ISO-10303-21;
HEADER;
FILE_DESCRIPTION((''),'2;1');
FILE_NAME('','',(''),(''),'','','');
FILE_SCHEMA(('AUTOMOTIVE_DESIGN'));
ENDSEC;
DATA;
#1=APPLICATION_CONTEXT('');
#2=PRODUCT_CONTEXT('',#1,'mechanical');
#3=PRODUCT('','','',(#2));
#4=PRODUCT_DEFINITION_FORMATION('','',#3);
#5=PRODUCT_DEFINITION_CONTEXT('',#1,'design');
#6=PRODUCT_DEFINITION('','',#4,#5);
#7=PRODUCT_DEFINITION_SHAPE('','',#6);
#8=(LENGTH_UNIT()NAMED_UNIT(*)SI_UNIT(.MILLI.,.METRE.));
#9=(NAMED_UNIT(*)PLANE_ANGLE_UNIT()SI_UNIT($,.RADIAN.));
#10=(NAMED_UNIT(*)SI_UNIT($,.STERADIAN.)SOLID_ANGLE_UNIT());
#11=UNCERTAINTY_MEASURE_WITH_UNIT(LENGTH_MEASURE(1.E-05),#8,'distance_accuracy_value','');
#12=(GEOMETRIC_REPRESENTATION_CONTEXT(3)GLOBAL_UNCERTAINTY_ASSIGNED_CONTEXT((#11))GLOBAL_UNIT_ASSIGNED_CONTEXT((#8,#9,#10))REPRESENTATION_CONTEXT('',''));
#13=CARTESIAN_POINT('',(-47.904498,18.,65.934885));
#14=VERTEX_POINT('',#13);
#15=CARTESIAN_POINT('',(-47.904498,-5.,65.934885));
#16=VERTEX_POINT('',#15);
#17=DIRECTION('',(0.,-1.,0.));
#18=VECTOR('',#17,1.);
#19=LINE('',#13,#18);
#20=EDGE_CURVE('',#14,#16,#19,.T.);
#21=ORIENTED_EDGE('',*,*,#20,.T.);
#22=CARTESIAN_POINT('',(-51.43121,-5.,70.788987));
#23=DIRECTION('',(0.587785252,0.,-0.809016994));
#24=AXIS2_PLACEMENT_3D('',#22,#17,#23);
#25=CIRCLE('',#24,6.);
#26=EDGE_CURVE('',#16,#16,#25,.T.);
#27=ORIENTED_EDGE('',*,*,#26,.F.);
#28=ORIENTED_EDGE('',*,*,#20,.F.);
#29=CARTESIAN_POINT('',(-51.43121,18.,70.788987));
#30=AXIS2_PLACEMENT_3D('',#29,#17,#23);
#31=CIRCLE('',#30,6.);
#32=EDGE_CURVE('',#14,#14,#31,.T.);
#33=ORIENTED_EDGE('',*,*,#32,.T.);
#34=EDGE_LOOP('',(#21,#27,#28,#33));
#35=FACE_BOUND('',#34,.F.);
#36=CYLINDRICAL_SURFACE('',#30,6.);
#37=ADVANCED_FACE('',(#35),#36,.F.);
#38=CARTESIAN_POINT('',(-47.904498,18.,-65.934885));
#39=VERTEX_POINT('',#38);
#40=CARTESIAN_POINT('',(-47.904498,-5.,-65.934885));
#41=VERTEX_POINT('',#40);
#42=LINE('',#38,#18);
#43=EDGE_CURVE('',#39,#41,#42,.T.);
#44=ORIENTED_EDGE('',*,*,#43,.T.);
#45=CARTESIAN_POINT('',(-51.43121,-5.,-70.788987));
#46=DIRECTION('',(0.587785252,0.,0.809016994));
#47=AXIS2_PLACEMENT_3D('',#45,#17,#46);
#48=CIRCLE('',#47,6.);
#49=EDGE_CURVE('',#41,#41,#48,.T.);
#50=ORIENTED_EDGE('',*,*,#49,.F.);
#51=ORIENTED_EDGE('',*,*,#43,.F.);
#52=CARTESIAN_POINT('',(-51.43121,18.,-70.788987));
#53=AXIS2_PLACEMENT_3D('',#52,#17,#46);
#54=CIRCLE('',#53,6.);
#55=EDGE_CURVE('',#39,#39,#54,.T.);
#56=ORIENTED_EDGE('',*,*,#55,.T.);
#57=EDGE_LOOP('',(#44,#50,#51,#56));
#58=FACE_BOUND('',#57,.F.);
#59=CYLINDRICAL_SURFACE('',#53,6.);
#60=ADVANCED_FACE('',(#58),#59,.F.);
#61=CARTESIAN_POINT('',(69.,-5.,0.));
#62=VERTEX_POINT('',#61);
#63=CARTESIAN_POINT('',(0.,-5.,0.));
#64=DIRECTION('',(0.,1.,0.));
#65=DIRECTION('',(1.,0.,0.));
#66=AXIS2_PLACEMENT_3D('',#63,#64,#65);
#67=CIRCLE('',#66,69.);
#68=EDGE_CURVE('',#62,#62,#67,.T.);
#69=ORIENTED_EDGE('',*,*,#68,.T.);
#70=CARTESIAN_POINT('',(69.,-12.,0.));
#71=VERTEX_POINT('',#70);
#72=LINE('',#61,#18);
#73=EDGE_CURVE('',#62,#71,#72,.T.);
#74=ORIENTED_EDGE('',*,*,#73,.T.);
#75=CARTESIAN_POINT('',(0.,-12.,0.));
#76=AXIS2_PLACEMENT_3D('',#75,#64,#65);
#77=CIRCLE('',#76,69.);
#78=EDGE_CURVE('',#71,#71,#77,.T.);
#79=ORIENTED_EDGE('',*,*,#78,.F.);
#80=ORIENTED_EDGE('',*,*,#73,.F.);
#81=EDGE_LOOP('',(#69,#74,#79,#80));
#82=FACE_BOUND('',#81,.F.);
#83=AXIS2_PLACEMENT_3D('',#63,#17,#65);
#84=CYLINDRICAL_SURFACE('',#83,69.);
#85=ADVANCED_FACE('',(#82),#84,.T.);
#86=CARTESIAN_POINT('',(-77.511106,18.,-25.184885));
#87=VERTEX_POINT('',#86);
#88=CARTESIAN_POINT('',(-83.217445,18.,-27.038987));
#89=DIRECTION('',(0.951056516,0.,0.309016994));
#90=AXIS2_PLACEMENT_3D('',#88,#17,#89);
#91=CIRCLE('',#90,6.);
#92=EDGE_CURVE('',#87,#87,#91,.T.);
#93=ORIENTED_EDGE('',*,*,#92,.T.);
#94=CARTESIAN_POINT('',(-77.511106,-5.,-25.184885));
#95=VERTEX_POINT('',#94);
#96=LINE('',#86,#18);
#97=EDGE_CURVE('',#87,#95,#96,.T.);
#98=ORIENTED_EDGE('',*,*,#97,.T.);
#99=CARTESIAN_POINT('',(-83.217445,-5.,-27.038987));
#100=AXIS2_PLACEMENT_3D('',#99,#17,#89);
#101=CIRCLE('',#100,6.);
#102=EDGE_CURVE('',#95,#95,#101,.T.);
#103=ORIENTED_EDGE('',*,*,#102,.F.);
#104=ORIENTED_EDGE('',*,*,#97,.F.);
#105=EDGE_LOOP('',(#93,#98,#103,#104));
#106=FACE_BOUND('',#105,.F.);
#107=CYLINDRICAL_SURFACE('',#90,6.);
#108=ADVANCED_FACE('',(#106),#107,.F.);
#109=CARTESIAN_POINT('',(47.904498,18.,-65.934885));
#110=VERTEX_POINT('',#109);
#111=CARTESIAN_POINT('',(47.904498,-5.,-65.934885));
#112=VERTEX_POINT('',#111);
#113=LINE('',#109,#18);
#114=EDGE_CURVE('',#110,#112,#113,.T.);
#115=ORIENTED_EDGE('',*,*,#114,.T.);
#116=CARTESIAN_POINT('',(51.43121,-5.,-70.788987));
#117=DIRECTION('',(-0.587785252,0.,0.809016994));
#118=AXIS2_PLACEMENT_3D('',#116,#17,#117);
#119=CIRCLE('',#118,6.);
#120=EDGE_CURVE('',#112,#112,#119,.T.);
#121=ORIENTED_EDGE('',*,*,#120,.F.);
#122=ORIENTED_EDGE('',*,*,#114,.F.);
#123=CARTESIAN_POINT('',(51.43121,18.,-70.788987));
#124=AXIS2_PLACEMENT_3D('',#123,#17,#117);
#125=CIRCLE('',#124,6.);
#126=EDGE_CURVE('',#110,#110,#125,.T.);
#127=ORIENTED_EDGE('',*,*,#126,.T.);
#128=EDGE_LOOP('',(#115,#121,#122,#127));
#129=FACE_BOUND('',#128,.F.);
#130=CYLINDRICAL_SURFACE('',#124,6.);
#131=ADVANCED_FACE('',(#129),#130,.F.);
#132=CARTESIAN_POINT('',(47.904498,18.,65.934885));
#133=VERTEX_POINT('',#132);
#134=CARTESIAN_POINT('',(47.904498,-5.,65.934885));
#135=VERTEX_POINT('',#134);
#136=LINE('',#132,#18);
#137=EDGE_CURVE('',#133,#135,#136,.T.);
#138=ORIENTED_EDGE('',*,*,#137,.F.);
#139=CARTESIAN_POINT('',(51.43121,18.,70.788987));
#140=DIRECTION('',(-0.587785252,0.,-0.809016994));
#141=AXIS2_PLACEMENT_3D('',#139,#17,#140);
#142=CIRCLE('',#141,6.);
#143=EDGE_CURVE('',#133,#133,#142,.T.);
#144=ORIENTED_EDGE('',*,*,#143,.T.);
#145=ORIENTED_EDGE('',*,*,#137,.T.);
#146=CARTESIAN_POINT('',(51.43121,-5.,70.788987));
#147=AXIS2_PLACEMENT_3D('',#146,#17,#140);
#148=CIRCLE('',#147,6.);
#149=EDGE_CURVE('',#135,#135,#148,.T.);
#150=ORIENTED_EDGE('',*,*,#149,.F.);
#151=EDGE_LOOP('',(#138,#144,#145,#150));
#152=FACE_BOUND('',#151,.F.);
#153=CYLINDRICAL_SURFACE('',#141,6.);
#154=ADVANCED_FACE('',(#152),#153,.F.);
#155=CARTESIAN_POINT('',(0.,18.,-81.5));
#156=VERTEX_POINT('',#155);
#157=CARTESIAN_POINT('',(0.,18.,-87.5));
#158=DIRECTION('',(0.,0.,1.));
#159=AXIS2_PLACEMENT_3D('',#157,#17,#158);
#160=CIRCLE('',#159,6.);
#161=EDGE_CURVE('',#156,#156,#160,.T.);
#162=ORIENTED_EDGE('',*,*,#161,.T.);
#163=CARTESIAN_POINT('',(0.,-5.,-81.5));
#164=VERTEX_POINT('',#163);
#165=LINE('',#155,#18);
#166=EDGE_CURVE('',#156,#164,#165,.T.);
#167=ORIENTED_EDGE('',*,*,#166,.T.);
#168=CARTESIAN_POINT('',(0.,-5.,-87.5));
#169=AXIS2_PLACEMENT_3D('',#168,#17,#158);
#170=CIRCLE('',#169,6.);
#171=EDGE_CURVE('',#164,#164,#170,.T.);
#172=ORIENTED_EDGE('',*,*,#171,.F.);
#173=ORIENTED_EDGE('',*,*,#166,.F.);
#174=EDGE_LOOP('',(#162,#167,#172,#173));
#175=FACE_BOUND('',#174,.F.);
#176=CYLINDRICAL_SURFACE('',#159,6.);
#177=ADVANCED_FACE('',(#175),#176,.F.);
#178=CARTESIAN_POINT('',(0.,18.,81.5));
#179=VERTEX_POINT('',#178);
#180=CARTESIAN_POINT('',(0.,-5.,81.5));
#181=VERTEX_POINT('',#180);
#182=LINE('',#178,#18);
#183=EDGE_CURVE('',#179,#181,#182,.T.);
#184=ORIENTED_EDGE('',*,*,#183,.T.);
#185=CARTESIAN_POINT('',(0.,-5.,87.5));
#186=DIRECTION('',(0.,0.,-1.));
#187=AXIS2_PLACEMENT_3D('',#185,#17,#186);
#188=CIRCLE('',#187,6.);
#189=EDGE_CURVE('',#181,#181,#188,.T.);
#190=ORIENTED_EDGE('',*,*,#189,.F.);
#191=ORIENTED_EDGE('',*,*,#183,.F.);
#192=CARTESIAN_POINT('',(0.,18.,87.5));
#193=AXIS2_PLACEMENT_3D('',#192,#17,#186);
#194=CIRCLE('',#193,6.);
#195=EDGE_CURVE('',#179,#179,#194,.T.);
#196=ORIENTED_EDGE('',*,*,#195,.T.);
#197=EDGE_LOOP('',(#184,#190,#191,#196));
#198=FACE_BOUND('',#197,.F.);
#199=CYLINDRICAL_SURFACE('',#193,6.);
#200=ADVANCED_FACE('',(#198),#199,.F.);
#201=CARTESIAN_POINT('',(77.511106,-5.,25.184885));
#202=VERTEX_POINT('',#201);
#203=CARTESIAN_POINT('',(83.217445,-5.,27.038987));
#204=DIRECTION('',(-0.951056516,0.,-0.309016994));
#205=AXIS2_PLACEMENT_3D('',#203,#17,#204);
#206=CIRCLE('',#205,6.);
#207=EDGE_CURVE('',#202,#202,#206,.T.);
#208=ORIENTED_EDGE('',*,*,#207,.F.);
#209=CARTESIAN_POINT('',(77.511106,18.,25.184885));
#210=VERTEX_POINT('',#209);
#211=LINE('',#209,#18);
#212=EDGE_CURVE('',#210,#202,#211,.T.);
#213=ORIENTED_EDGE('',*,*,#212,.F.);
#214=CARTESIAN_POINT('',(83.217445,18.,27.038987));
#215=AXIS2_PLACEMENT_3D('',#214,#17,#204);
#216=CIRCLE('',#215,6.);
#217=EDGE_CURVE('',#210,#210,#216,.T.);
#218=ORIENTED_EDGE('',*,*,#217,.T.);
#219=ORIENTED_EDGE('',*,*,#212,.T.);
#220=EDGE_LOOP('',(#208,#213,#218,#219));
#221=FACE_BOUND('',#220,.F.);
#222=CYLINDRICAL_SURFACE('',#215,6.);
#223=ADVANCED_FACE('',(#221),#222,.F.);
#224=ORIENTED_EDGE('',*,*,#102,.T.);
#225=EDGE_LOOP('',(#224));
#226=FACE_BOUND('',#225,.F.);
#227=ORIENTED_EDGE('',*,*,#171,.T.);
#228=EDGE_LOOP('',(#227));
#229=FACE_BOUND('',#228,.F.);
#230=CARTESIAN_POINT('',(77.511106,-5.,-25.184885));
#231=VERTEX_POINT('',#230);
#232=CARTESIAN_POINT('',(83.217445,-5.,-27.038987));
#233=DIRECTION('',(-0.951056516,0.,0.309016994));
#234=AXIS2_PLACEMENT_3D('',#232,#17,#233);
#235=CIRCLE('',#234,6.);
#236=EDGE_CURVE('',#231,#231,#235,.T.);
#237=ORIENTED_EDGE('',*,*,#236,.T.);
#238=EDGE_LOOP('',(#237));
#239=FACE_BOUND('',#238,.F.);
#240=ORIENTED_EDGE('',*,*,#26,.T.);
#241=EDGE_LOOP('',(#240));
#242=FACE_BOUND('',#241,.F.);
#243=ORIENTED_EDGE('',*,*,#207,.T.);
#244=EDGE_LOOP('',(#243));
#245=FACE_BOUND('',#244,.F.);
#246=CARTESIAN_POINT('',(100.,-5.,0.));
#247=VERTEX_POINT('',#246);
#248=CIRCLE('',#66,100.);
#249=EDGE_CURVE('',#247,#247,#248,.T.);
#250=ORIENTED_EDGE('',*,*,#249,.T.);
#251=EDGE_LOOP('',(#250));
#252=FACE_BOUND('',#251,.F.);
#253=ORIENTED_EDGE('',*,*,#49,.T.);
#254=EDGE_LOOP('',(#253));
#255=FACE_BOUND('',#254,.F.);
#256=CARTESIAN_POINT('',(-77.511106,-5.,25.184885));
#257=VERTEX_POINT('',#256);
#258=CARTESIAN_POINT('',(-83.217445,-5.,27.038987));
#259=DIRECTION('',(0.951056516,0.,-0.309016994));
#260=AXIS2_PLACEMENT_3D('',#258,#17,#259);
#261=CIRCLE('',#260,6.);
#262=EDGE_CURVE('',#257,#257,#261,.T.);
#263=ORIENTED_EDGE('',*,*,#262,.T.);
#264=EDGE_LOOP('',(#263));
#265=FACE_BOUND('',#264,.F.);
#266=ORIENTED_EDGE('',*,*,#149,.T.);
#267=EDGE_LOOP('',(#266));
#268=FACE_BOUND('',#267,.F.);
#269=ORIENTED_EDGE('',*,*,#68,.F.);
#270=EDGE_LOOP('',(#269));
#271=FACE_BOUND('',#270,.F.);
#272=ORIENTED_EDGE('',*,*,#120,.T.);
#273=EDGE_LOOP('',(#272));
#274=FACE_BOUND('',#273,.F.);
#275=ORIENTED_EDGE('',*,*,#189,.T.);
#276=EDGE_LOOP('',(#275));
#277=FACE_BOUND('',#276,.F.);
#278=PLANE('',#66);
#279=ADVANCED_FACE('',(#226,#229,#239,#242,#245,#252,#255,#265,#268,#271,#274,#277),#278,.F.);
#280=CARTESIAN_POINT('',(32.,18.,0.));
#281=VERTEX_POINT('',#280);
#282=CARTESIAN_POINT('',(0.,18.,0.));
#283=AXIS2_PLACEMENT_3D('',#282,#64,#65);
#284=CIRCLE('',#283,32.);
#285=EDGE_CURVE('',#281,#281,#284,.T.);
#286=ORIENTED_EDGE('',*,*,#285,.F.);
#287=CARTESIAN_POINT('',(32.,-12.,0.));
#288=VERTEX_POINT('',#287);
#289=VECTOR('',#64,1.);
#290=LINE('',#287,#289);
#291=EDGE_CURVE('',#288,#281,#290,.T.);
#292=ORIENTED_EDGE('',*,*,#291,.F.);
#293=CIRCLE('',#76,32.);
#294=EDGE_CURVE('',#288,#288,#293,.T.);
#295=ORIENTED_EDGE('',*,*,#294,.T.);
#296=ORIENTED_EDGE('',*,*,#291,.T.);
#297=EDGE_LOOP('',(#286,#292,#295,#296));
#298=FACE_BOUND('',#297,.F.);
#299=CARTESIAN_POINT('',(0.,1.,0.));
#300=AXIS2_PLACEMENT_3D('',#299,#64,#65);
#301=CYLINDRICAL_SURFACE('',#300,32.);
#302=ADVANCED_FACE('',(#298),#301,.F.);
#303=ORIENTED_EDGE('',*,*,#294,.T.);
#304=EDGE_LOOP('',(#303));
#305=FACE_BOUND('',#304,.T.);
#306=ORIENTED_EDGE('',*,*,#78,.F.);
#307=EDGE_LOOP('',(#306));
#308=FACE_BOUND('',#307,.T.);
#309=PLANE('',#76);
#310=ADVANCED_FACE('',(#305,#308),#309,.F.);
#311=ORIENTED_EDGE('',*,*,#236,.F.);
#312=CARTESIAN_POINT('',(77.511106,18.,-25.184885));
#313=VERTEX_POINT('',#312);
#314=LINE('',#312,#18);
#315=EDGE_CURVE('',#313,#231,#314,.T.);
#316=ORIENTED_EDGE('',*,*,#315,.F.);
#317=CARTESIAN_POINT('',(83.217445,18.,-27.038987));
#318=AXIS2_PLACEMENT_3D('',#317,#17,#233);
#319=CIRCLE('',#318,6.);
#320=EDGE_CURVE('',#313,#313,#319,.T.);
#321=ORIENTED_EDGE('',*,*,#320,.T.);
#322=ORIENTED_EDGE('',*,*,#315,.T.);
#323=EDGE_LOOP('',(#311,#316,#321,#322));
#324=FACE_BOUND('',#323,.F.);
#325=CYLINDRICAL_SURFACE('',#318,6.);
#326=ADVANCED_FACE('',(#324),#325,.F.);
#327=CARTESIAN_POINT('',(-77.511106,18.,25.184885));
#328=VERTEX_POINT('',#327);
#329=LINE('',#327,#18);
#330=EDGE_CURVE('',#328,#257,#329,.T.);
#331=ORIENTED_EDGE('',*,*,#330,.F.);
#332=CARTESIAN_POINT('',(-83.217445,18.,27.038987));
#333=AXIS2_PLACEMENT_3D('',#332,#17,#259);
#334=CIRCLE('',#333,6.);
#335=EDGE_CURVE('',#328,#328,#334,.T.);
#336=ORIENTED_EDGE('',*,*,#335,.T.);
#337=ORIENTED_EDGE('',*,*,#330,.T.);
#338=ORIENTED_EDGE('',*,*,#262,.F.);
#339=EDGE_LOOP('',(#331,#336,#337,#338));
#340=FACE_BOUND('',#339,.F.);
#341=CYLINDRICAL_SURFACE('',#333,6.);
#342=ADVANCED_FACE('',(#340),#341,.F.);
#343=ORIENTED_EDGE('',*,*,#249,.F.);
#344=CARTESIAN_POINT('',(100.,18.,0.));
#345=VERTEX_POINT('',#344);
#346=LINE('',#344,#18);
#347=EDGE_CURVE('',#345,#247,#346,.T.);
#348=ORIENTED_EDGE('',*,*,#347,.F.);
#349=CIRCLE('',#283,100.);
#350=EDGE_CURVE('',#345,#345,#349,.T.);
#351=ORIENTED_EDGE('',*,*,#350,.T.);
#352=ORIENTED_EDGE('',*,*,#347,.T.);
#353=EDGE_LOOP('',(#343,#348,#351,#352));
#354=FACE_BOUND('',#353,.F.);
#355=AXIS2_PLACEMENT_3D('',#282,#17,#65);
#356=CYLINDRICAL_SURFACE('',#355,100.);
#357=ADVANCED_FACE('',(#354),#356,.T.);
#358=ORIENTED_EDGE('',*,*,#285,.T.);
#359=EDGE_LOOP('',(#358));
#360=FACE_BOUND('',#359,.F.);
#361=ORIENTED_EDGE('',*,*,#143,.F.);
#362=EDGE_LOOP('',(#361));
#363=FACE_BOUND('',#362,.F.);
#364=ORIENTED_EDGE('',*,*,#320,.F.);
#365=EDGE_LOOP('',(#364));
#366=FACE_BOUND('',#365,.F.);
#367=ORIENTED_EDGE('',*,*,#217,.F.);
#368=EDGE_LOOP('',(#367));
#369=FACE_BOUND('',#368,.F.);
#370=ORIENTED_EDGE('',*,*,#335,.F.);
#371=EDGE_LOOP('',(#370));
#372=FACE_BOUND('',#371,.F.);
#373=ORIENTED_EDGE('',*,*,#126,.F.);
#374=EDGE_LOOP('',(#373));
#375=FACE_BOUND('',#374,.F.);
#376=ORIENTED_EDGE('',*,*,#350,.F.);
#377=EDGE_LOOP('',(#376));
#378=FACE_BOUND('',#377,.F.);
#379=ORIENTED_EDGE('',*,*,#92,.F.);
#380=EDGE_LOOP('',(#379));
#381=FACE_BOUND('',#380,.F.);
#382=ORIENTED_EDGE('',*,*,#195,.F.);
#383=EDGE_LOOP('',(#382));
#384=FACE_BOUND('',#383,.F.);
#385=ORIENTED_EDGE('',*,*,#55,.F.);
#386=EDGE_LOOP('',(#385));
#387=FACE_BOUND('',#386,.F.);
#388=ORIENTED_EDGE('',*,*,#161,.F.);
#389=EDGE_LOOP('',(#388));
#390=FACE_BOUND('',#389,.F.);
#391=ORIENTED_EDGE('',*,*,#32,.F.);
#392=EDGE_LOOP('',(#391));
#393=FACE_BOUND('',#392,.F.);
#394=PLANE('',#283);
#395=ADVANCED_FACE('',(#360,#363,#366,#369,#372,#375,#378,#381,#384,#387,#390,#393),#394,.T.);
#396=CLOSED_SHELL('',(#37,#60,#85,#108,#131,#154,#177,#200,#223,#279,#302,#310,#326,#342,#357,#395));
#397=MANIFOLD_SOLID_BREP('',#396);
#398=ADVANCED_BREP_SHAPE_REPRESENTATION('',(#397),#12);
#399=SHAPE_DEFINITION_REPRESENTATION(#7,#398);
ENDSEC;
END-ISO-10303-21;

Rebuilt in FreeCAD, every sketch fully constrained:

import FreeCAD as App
import Part
import Sketcher
Q = App.Units.Quantity


def add_polygon(sketch, points):
    """Adds a closed chain of lines whose ends are joined by coincident constraints."""
    first, n = sketch.GeometryCount, len(points)
    for a, b in zip(points, points[1:] + points[:1]):
        sketch.addGeometry(Part.LineSegment(App.Vector(*a, 0), App.Vector(*b, 0)), False)
    for i in range(n):
        sketch.addConstraint(Sketcher.Constraint("Coincident", first + i, 2, first + (i + 1) % n, 1))

doc = App.newDocument("Part")
body = doc.addObject("PartDesign::Body", "Body")

# Sketch on XY plane
sketch1 = body.newObject("Sketcher::SketchObject", "Sketch")
sketch1.AttachmentSupport = (doc.getObject("XY_Plane"), [""])
sketch1.MapMode = "FlatFace"
add_polygon(sketch1, [(100, 18), (32, 18), (32, -12), (69, -12), (69, -5), (100, -5)])  # lines 0-5
sketch1.addConstraint([
    Sketcher.Constraint("Horizontal", 0),
    Sketcher.Constraint("Vertical", 1),
    Sketcher.Constraint("Horizontal", 2),
    Sketcher.Constraint("Vertical", 3),
    Sketcher.Constraint("Horizontal", 4),
    Sketcher.Constraint("Vertical", 5),
    Sketcher.Constraint("DistanceX", 4, 1, 4, 2, Q("31 mm")),
    Sketcher.Constraint("DistanceY", 5, 1, 5, 2, Q("23 mm")),
    Sketcher.Constraint("DistanceY", -1, 1, 0, 2, Q("18 mm")),
    Sketcher.Constraint("DistanceX", -1, 1, 4, 2, Q("100 mm")),
    Sketcher.Constraint("DistanceX", 0, 2, 0, 1, Q("68 mm")),
    Sketcher.Constraint("DistanceY", 1, 2, 1, 1, Q("30 mm")),
])
revolution = body.newObject("PartDesign::Revolution", "Revolution")
revolution.Profile = sketch1
revolution.ReferenceAxis = (sketch1, ["V_Axis"])
revolution.Angle = 360

# Sketch on XZ plane
sketch2 = body.newObject("Sketcher::SketchObject", "Sketch001")
sketch2.AttachmentSupport = (doc.getObject("XZ_Plane"), [""])
sketch2.MapMode = "FlatFace"
sketch2.AttachmentOffset = App.Placement(App.Vector(0, 0, -18), App.Rotation())
sketch2.addGeometry(Part.Circle(App.Vector(0, -88, 0), App.Vector(0, 0, 1), 6), False)
sketch2.addConstraint([
    Sketcher.Constraint("PointOnObject", 0, 3, -2),
    Sketcher.Constraint("Diameter", 0, Q("12 mm")),
    Sketcher.Constraint("DistanceY", 0, 3, -1, 1, Q("87.5 mm")),
])
doc.recompute()
hole = body.newObject("PartDesign::Hole", "Hole")
hole.Profile = sketch2
hole.ThreadType = "None"
hole.Diameter = 12
hole.DepthType = "ThroughAll"
hole.Reversed = True
doc.recompute()

polarpattern = body.newObject("PartDesign::PolarPattern", "PolarPattern")
polarpattern.Originals = [hole]
polarpattern.Axis = (doc.getObject("Y_Axis"), [""])
polarpattern.Angle = 360
polarpattern.Occurrences = 10
body.Tip = polarpattern

doc.recompute()
